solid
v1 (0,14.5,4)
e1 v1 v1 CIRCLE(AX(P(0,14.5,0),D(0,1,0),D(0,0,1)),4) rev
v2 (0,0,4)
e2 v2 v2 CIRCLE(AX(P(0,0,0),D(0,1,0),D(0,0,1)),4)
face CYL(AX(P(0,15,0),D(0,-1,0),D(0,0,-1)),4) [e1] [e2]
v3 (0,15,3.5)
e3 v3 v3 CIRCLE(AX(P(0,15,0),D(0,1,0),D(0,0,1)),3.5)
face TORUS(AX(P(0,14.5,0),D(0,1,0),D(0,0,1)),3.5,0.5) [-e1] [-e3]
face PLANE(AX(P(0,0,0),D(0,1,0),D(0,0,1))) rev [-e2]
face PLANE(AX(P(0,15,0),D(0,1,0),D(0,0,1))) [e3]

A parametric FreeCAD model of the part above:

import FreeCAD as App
import Part
import Sketcher
from FreeCAD import Vector


def edges_at(feature, points):
    """Names of the edges that pass closest to the given points."""
    edges = feature.Shape.Edges
    near = lambda p: min(range(len(edges)), key=lambda i: edges[i].distToShape(Part.Vertex(*p))[0])
    return sorted({f"Edge{near(p) + 1}" for p in points})

doc = App.newDocument("Part")
body = doc.addObject("PartDesign::Body", "Body")

sketch1 = doc.addObject("Sketcher::SketchObject", "Sketch")
body.addObject(sketch1)
sketch1.AttachmentSupport = (doc.XZ_Plane, [""])
sketch1.MapMode = "FlatFace"
sketch1.addGeometry(Part.Circle(Vector(0, 0, 0), Vector(0, 0, 1), 4), False)
sketch1.addConstraint([
    Sketcher.Constraint("Coincident", 0, 3, -1, 1),
    Sketcher.Constraint("Diameter", 0, 8.0),
])
pad1 = doc.addObject("PartDesign::Pad", "Pad")
body.addObject(pad1)
pad1.Profile = sketch1
pad1.Length = 15
pad1.Reversed = True
doc.recompute()

fillet = doc.addObject("PartDesign::Fillet", "Fillet")
body.addObject(fillet)
fillet.Base = (pad1, edges_at(pad1, [(-4, 15, 0)]))
fillet.Radius = 0.5

doc.recompute()
